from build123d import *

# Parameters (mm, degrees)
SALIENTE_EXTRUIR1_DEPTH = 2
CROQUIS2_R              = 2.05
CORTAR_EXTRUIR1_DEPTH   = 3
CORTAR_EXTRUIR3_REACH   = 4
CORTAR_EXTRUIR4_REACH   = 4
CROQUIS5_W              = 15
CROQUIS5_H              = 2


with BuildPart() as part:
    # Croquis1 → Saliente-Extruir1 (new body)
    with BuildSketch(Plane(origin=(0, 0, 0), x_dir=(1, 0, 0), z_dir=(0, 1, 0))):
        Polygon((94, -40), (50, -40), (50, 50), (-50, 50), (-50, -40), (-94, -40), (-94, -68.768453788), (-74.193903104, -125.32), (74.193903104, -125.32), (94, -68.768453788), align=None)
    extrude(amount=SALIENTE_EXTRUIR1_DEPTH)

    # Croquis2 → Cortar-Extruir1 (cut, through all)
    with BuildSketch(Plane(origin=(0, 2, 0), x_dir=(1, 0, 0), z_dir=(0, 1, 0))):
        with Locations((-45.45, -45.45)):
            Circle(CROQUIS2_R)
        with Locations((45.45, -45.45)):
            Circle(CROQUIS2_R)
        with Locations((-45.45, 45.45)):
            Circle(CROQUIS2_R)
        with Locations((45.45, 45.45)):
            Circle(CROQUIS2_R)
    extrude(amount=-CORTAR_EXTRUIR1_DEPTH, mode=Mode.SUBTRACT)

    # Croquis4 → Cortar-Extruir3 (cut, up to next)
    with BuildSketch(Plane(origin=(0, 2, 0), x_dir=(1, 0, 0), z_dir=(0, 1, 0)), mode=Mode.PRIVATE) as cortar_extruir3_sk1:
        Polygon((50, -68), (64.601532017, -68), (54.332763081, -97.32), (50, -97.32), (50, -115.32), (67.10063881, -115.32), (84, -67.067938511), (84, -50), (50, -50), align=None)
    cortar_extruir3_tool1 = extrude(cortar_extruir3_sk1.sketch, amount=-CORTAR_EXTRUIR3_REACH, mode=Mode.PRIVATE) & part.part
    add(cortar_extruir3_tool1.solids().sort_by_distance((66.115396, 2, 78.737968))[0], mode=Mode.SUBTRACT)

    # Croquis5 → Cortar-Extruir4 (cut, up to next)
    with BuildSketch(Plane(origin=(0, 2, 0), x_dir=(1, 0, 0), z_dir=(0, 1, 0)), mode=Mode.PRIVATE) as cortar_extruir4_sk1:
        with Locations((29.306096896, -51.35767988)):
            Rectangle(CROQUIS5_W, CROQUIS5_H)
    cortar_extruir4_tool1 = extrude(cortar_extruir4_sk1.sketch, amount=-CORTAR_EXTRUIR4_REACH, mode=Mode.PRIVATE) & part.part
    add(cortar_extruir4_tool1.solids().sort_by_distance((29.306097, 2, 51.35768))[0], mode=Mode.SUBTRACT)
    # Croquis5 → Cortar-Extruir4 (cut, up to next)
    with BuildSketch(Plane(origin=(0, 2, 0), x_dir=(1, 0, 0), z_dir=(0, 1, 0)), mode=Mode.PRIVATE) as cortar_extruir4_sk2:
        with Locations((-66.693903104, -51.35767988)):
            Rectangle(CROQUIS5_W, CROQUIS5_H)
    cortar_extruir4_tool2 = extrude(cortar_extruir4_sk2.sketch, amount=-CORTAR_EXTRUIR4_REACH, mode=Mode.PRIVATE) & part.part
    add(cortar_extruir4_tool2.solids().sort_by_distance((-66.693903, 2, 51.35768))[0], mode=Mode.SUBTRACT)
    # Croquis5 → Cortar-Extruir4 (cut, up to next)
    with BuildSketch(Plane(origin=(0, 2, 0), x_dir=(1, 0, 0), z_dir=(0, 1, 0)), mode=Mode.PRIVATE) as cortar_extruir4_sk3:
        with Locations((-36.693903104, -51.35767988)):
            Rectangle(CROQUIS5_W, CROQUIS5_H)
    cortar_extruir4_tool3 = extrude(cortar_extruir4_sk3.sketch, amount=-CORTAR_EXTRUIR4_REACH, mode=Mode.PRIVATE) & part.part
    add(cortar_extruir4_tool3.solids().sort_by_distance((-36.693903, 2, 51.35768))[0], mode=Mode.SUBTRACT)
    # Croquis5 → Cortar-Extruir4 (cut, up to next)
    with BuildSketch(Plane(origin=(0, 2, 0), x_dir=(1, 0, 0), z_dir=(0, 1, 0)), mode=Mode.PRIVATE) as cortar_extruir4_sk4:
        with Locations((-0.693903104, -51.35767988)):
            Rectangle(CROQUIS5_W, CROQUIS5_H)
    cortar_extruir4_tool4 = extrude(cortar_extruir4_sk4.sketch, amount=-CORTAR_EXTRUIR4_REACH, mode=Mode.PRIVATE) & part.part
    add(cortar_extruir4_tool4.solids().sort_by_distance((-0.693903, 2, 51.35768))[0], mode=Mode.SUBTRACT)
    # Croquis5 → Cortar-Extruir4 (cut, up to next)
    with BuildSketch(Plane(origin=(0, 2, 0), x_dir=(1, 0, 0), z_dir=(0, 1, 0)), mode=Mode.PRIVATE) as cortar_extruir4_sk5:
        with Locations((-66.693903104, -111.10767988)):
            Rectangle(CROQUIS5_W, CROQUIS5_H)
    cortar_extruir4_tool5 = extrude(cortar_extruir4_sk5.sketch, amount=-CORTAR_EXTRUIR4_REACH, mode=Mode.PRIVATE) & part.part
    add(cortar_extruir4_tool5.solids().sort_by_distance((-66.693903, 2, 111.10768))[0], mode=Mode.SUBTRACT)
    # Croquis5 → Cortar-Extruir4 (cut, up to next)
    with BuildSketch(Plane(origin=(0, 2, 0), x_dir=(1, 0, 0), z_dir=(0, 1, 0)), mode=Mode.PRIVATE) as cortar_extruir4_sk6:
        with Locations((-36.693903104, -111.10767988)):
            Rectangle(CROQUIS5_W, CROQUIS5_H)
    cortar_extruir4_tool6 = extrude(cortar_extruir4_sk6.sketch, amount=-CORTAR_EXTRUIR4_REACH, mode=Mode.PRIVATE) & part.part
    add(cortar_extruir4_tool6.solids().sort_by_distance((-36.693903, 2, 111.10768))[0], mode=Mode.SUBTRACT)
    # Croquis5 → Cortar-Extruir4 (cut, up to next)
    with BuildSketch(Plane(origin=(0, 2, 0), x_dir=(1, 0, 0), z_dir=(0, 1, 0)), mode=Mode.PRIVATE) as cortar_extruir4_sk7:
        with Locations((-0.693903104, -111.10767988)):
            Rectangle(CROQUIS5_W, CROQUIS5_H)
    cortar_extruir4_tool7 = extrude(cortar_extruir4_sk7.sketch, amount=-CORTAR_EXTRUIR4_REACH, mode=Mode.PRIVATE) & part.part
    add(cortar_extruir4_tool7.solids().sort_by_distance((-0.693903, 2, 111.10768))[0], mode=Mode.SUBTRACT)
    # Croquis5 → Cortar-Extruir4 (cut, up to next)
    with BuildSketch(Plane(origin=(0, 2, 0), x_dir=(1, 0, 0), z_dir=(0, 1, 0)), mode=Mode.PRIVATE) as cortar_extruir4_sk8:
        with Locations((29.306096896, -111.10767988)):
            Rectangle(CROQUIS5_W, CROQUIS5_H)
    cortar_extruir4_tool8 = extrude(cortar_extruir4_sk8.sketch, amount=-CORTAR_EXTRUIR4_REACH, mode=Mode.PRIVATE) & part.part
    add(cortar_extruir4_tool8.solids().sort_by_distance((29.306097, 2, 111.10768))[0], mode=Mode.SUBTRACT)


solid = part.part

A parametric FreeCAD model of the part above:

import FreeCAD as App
import Part
import Sketcher

V = App.Vector
Q = App.Units.Quantity

doc = App.newDocument("Part")
params = doc.addObject("Spreadsheet::Sheet", "Params")
for row, (alias, value) in enumerate([
    ("sketch1_width", "44 mm"),
    ("sketch1_width2", "100 mm"),
    ("sketch1_height", "90 mm"),
    ("pad1_length", "2 mm"),
    ("sketch2_diameter", "4.1 mm"),
    ("sketch3_width", "34 mm"),
    ("sketch3_height", "18 mm"),
    ("sketch4_width", "15 mm"),
    ("sketch4_height", "2 mm"),
    ("sketch5_width", "15 mm"),
    ("sketch5_height", "2 mm"),
    ("sketch6_width", "15 mm"),
    ("sketch6_height", "2 mm"),
    ("sketch7_width", "15 mm"),
    ("sketch7_height", "2 mm"),
    ("sketch8_width", "15 mm"),
    ("sketch8_height", "2 mm"),
    ("sketch9_width", "15 mm"),
    ("sketch9_height", "2 mm"),
    ("sketch10_width", "15 mm"),
    ("sketch10_height", "2 mm"),
    ("sketch11_width", "15 mm"),
    ("sketch11_height", "2 mm"),
], start=1):
    params.set(f"A{row}", alias)
    params.set(f"B{row}", "=" + value)
    params.setAlias(f"B{row}", alias)

body = doc.addObject("PartDesign::Body", "Body")

# Sketch on XZ plane
sketch1 = body.newObject("Sketcher::SketchObject", "Sketch")
sketch1.AttachmentSupport = (doc.getObject("XZ_Plane"), [""])
sketch1.MapMode = "FlatFace"
sketch1.addGeometry([
    Part.LineSegment(V(94, 40, 0), V(50, 40, 0)),  # 0
    Part.LineSegment(V(50, 40, 0), V(50, -50, 0)),  # 1
    Part.LineSegment(V(50, -50, 0), V(-50, -50, 0)),  # 2
    Part.LineSegment(V(-50, -50, 0), V(-50, 40, 0)),  # 3
    Part.LineSegment(V(-50, 40, 0), V(-94, 40, 0)),  # 4
    Part.LineSegment(V(-94, 40, 0), V(-94, 68.768454, 0)),  # 5
    Part.LineSegment(V(-94, 68.768454, 0), V(-74.193903, 125.32, 0)),  # 6
    Part.LineSegment(V(-74.193903, 125.32, 0), V(74.193903, 125.32, 0)),  # 7
    Part.LineSegment(V(74.193903, 125.32, 0), V(94, 68.768454, 0)),  # 8
    Part.LineSegment(V(94, 68.768454, 0), V(94, 40, 0)),  # 9
], False)
sketch1.addConstraint([
    Sketcher.Constraint("Coincident", 0, 2, 1, 1),
    Sketcher.Constraint("Coincident", 1, 2, 2, 1),
    Sketcher.Constraint("Coincident", 2, 2, 3, 1),
    Sketcher.Constraint("Coincident", 3, 2, 4, 1),
    Sketcher.Constraint("Coincident", 4, 2, 5, 1),
    Sketcher.Constraint("Coincident", 5, 2, 6, 1),
    Sketcher.Constraint("Coincident", 6, 2, 7, 1),
    Sketcher.Constraint("Coincident", 7, 2, 8, 1),
    Sketcher.Constraint("Coincident", 8, 2, 9, 1),
    Sketcher.Constraint("Coincident", 9, 2, 0, 1),
    Sketcher.Constraint("Horizontal", 0),
    Sketcher.Constraint("Vertical", 1),
    Sketcher.Constraint("Horizontal", 2),
    Sketcher.Constraint("Vertical", 3),
    Sketcher.Constraint("Horizontal", 4),
    Sketcher.Constraint("Vertical", 5),
    Sketcher.Constraint("Horizontal", 7),
    Sketcher.Constraint("Vertical", 9),
    Sketcher.Constraint("Symmetric", 0, 2, 3, 2, -2),
    Sketcher.Constraint("Symmetric", 5, 2, 8, 2, -2),
    Sketcher.Constraint("Equal", 6, 8),
    Sketcher.Constraint("DistanceX", 0, 2, 0, 1, Q("44 mm")),
    Sketcher.Constraint("DistanceX", 2, 2, 2, 1, Q("100 mm")),
    Sketcher.Constraint("DistanceY", 1, 2, 1, 1, Q("90 mm")),
    Sketcher.Constraint("DistanceY", -1, 1, 0, 2, Q("40 mm")),
    Sketcher.Constraint("DistanceY", -1, 1, 6, 2, Q("125.32 mm")),
    Sketcher.Constraint("DistanceX", 7, 1, 7, 2, Q("148.387806 mm")),
    Sketcher.Constraint("DistanceY", 5, 1, 5, 2, Q("28.768454 mm")),
])
sketch1.setExpression("Constraints[21]", "Params.sketch1_width")
sketch1.setExpression("Constraints[22]", "Params.sketch1_width2")
sketch1.setExpression("Constraints[23]", "Params.sketch1_height")
pad1 = body.newObject("PartDesign::Pad", "Pad")
pad1.Profile = sketch1
pad1.setExpression("Length", "Params.pad1_length")
pad1.Reversed = True

# Sketch on XZ plane
sketch2 = body.newObject("Sketcher::SketchObject", "Sketch001")
sketch2.AttachmentSupport = (doc.getObject("XZ_Plane"), [""])
sketch2.MapMode = "FlatFace"
sketch2.AttachmentOffset = App.Placement(V(0, 0, -2), App.Rotation())
sketch2.addGeometry([
    Part.Circle(V(-45.45, 45.45, 0), V(0, 0, 1), 2.05),
    Part.Circle(V(45.45, 45.45, 0), V(0, 0, 1), 2.05),
    Part.Circle(V(-45.45, -45.45, 0), V(0, 0, 1), 2.05),
    Part.Circle(V(45.45, -45.45, 0), V(0, 0, 1), 2.05),
], False)
sketch2.addConstraint([
    Sketcher.Constraint("Equal", 0, 1),
    Sketcher.Constraint("Equal", 1, 2),
    Sketcher.Constraint("Equal", 2, 3),
    Sketcher.Constraint("Symmetric", 1, 3, 2, 3, -1, 1),
    Sketcher.Constraint("Symmetric", 0, 3, 3, 3, -1, 1),
    Sketcher.Constraint("Symmetric", 0, 3, 1, 3, -2),
    Sketcher.Constraint("Diameter", 0, Q("4.1 mm")),
    Sketcher.Constraint("DistanceX", 0, 3, 1, 3, Q("90.9 mm")),
    Sketcher.Constraint("DistanceY", 2, 3, 0, 3, Q("90.9 mm")),
])
sketch2.setExpression("Constraints[6]", "Params.sketch2_diameter")
pocket1 = body.newObject("PartDesign::Pocket", "Pocket")
pocket1.Profile = sketch2
pocket1.Type = "ThroughAll"
pocket1.Reversed = True

# Sketch on XZ plane
sketch3 = body.newObject("Sketcher::SketchObject", "Sketch002")
sketch3.AttachmentSupport = (doc.getObject("XZ_Plane"), [""])
sketch3.MapMode = "FlatFace"
sketch3.AttachmentOffset = App.Placement(V(0, 0, -2), App.Rotation())
sketch3.addGeometry([
    Part.LineSegment(V(50, 68, 0), V(64.601532, 68, 0)),  # 0
    Part.LineSegment(V(64.601532, 68, 0), V(54.332763, 97.32, 0)),  # 1
    Part.LineSegment(V(54.332763, 97.32, 0), V(50, 97.32, 0)),  # 2
    Part.LineSegment(V(50, 97.32, 0), V(50, 115.32, 0)),  # 3
    Part.LineSegment(V(50, 115.32, 0), V(67.100639, 115.32, 0)),  # 4
    Part.LineSegment(V(67.100639, 115.32, 0), V(84, 67.067939, 0)),  # 5
    Part.LineSegment(V(84, 67.067939, 0), V(84, 50, 0)),  # 6
    Part.LineSegment(V(84, 50, 0), V(50, 50, 0)),  # 7
    Part.LineSegment(V(50, 50, 0), V(50, 68, 0)),  # 8
], False)
sketch3.addConstraint([
    Sketcher.Constraint("Coincident", 0, 2, 1, 1),
    Sketcher.Constraint("Coincident", 1, 2, 2, 1),
    Sketcher.Constraint("Coincident", 2, 2, 3, 1),
    Sketcher.Constraint("Coincident", 3, 2, 4, 1),
    Sketcher.Constraint("Coincident", 4, 2, 5, 1),
    Sketcher.Constraint("Coincident", 5, 2, 6, 1),
    Sketcher.Constraint("Coincident", 6, 2, 7, 1),
    Sketcher.Constraint("Coincident", 7, 2, 8, 1),
    Sketcher.Constraint("Coincident", 8, 2, 0, 1),
    Sketcher.Constraint("Horizontal", 0),
    Sketcher.Constraint("Horizontal", 2),
    Sketcher.Constraint("Vertical", 3),
    Sketcher.Constraint("Horizontal", 4),
    Sketcher.Constraint("Vertical", 6),
    Sketcher.Constraint("Horizontal", 7),
    Sketcher.Constraint("Vertical", 8),
    Sketcher.Constraint("Parallel", 1, 5),
    Sketcher.Constraint("Vertical", 3, 2, 7, 2),
    Sketcher.Constraint("Equal", 3, 8),
    Sketcher.Constraint("DistanceX", 7, 2, 7, 1, Q("34 mm")),
    Sketcher.Constraint("DistanceY", 3, 1, 3, 2, Q("18 mm")),
    Sketcher.Constraint("DistanceY", -1, 1, 0, 2, Q("68 mm")),
    Sketcher.Constraint("DistanceX", -1, 1, 2, 2, Q("50 mm")),
    Sketcher.Constraint("DistanceY", -1, 1, 1, 2, Q("97.32 mm")),
    Sketcher.Constraint("DistanceX", 4, 1, 4, 2, Q("17.100639 mm")),
    Sketcher.Constraint("DistanceY", 6, 2, 6, 1, Q("17.067939 mm")),
    Sketcher.Constraint("DistanceX", 0, 1, 0, 2, Q("14.601532 mm")),
])
sketch3.setExpression("Constraints[19]", "Params.sketch3_width")
sketch3.setExpression("Constraints[20]", "Params.sketch3_height")
pocket2 = body.newObject("PartDesign::Pocket", "Pocket001")
pocket2.Profile = sketch3
pocket2.Type = "UpToFirst"
pocket2.Reversed = True

# Sketch on XZ plane
sketch4 = body.newObject("Sketcher::SketchObject", "Sketch003")
sketch4.AttachmentSupport = (doc.getObject("XZ_Plane"), [""])
sketch4.MapMode = "FlatFace"
sketch4.AttachmentOffset = App.Placement(V(0, 0, -2), App.Rotation())
sketch4.addGeometry([
    Part.LineSegment(V(21.806097, 50.35768, 0), V(21.806097, 52.35768, 0)),
    Part.LineSegment(V(21.806097, 52.35768, 0), V(36.806097, 52.35768, 0)),
    Part.LineSegment(V(36.806097, 52.35768, 0), V(36.806097, 50.35768, 0)),
    Part.LineSegment(V(36.806097, 50.35768, 0), V(21.806097, 50.35768, 0)),
], False)
sketch4.addConstraint([
    Sketcher.Constraint("Coincident", 0, 2, 1, 1),
    Sketcher.Constraint("Coincident", 1, 2, 2, 1),
    Sketcher.Constraint("Coincident", 2, 2, 3, 1),
    Sketcher.Constraint("Coincident", 3, 2, 0, 1),
    Sketcher.Constraint("Vertical", 0),
    Sketcher.Constraint("Horizontal", 1),
    Sketcher.Constraint("Vertical", 2),
    Sketcher.Constraint("Horizontal", 3),
    Sketcher.Constraint("DistanceX", 1, 1, 1, 2, Q("15 mm")),
    Sketcher.Constraint("DistanceY", 0, 1, 0, 2, Q("2 mm")),
    Sketcher.Constraint("DistanceY", -1, 1, 0, 2, Q("52.35768 mm")),
    Sketcher.Constraint("DistanceX", -1, 1, 0, 2, Q("21.806097 mm")),
])
sketch4.setExpression("Constraints[8]", "Params.sketch4_width")
sketch4.setExpression("Constraints[9]", "Params.sketch4_height")
pocket3 = body.newObject("PartDesign::Pocket", "Pocket002")
pocket3.Profile = sketch4
pocket3.Type = "UpToFirst"
pocket3.Reversed = True

# Sketch on XZ plane
sketch5 = body.newObject("Sketcher::SketchObject", "Sketch004")
sketch5.AttachmentSupport = (doc.getObject("XZ_Plane"), [""])
sketch5.MapMode = "FlatFace"
sketch5.AttachmentOffset = App.Placement(V(0, 0, -2), App.Rotation())
sketch5.addGeometry([
    Part.LineSegment(V(-74.193903, 50.35768, 0), V(-74.193903, 52.35768, 0)),
    Part.LineSegment(V(-74.193903, 52.35768, 0), V(-59.193903, 52.35768, 0)),
    Part.LineSegment(V(-59.193903, 52.35768, 0), V(-59.193903, 50.35768, 0)),
    Part.LineSegment(V(-59.193903, 50.35768, 0), V(-74.193903, 50.35768, 0)),
], False)
sketch5.addConstraint([
    Sketcher.Constraint("Coincident", 0, 2, 1, 1),
    Sketcher.Constraint("Coincident", 1, 2, 2, 1),
    Sketcher.Constraint("Coincident", 2, 2, 3, 1),
    Sketcher.Constraint("Coincident", 3, 2, 0, 1),
    Sketcher.Constraint("Vertical", 0),
    Sketcher.Constraint("Horizontal", 1),
    Sketcher.Constraint("Vertical", 2),
    Sketcher.Constraint("Horizontal", 3),
    Sketcher.Constraint("DistanceX", 1, 1, 1, 2, Q("15 mm")),
    Sketcher.Constraint("DistanceY", 0, 1, 0, 2, Q("2 mm")),
    Sketcher.Constraint("DistanceY", -1, 1, 0, 2, Q("52.35768 mm")),
    Sketcher.Constraint("DistanceX", 0, 2, -1, 1, Q("74.193903 mm")),
])
sketch5.setExpression("Constraints[8]", "Params.sketch5_width")
sketch5.setExpression("Constraints[9]", "Params.sketch5_height")
pocket4 = body.newObject("PartDesign::Pocket", "Pocket003")
pocket4.Profile = sketch5
pocket4.Type = "UpToFirst"
pocket4.Reversed = True

# Sketch on XZ plane
sketch6 = body.newObject("Sketcher::SketchObject", "Sketch005")
sketch6.AttachmentSupport = (doc.getObject("XZ_Plane"), [""])
sketch6.MapMode = "FlatFace"
sketch6.AttachmentOffset = App.Placement(V(0, 0, -2), App.Rotation())
sketch6.addGeometry([
    Part.LineSegment(V(-44.193903, 50.35768, 0), V(-44.193903, 52.35768, 0)),
    Part.LineSegment(V(-44.193903, 52.35768, 0), V(-29.193903, 52.35768, 0)),
    Part.LineSegment(V(-29.193903, 52.35768, 0), V(-29.193903, 50.35768, 0)),
    Part.LineSegment(V(-29.193903, 50.35768, 0), V(-44.193903, 50.35768, 0)),
], False)
sketch6.addConstraint([
    Sketcher.Constraint("Coincident", 0, 2, 1, 1),
    Sketcher.Constraint("Coincident", 1, 2, 2, 1),
    Sketcher.Constraint("Coincident", 2, 2, 3, 1),
    Sketcher.Constraint("Coincident", 3, 2, 0, 1),
    Sketcher.Constraint("Vertical", 0),
    Sketcher.Constraint("Horizontal", 1),
    Sketcher.Constraint("Vertical", 2),
    Sketcher.Constraint("Horizontal", 3),
    Sketcher.Constraint("DistanceX", 1, 1, 1, 2, Q("15 mm")),
    Sketcher.Constraint("DistanceY", 0, 1, 0, 2, Q("2 mm")),
    Sketcher.Constraint("DistanceY", -1, 1, 0, 2, Q("52.35768 mm")),
    Sketcher.Constraint("DistanceX", 0, 2, -1, 1, Q("44.193903 mm")),
])
sketch6.setExpression("Constraints[8]", "Params.sketch6_width")
sketch6.setExpression("Constraints[9]", "Params.sketch6_height")
pocket5 = body.newObject("PartDesign::Pocket", "Pocket004")
pocket5.Profile = sketch6
pocket5.Type = "UpToFirst"
pocket5.Reversed = True

# Sketch on XZ plane
sketch7 = body.newObject("Sketcher::SketchObject", "Sketch006")
sketch7.AttachmentSupport = (doc.getObject("XZ_Plane"), [""])
sketch7.MapMode = "FlatFace"
sketch7.AttachmentOffset = App.Placement(V(0, 0, -2), App.Rotation())
sketch7.addGeometry([
    Part.LineSegment(V(-8.193903, 50.35768, 0), V(-8.193903, 52.35768, 0)),
    Part.LineSegment(V(-8.193903, 52.35768, 0), V(6.806097, 52.35768, 0)),
    Part.LineSegment(V(6.806097, 52.35768, 0), V(6.806097, 50.35768, 0)),
    Part.LineSegment(V(6.806097, 50.35768, 0), V(-8.193903, 50.35768, 0)),
], False)
sketch7.addConstraint([
    Sketcher.Constraint("Coincident", 0, 2, 1, 1),
    Sketcher.Constraint("Coincident", 1, 2, 2, 1),
    Sketcher.Constraint("Coincident", 2, 2, 3, 1),
    Sketcher.Constraint("Coincident", 3, 2, 0, 1),
    Sketcher.Constraint("Vertical", 0),
    Sketcher.Constraint("Horizontal", 1),
    Sketcher.Constraint("Vertical", 2),
    Sketcher.Constraint("Horizontal", 3),
    Sketcher.Constraint("DistanceX", 1, 1, 1, 2, Q("15 mm")),
    Sketcher.Constraint("DistanceY", 0, 1, 0, 2, Q("2 mm")),
    Sketcher.Constraint("DistanceY", -1, 1, 0, 2, Q("52.35768 mm")),
    Sketcher.Constraint("DistanceX", 0, 2, -1, 1, Q("8.193903 mm")),
])
sketch7.setExpression("Constraints[8]", "Params.sketch7_width")
sketch7.setExpression("Constraints[9]", "Params.sketch7_height")
pocket6 = body.newObject("PartDesign::Pocket", "Pocket005")
pocket6.Profile = sketch7
pocket6.Type = "UpToFirst"
pocket6.Reversed = True

# Sketch on XZ plane
sketch8 = body.newObject("Sketcher::SketchObject", "Sketch007")
sketch8.AttachmentSupport = (doc.getObject("XZ_Plane"), [""])
sketch8.MapMode = "FlatFace"
sketch8.AttachmentOffset = App.Placement(V(0, 0, -2), App.Rotation())
sketch8.addGeometry([
    Part.LineSegment(V(-74.193903, 110.10768, 0), V(-74.193903, 112.10768, 0)),
    Part.LineSegment(V(-74.193903, 112.10768, 0), V(-59.193903, 112.10768, 0)),
    Part.LineSegment(V(-59.193903, 112.10768, 0), V(-59.193903, 110.10768, 0)),
    Part.LineSegment(V(-59.193903, 110.10768, 0), V(-74.193903, 110.10768, 0)),
], False)
sketch8.addConstraint([
    Sketcher.Constraint("Coincident", 0, 2, 1, 1),
    Sketcher.Constraint("Coincident", 1, 2, 2, 1),
    Sketcher.Constraint("Coincident", 2, 2, 3, 1),
    Sketcher.Constraint("Coincident", 3, 2, 0, 1),
    Sketcher.Constraint("Vertical", 0),
    Sketcher.Constraint("Horizontal", 1),
    Sketcher.Constraint("Vertical", 2),
    Sketcher.Constraint("Horizontal", 3),
    Sketcher.Constraint("DistanceX", 1, 1, 1, 2, Q("15 mm")),
    Sketcher.Constraint("DistanceY", 0, 1, 0, 2, Q("2 mm")),
    Sketcher.Constraint("DistanceY", -1, 1, 0, 2, Q("112.10768 mm")),
    Sketcher.Constraint("DistanceX", 0, 2, -1, 1, Q("74.193903 mm")),
])
sketch8.setExpression("Constraints[8]", "Params.sketch8_width")
sketch8.setExpression("Constraints[9]", "Params.sketch8_height")
pocket7 = body.newObject("PartDesign::Pocket", "Pocket006")
pocket7.Profile = sketch8
pocket7.Type = "UpToFirst"
pocket7.Reversed = True

# Sketch on XZ plane
sketch9 = body.newObject("Sketcher::SketchObject", "Sketch008")
sketch9.AttachmentSupport = (doc.getObject("XZ_Plane"), [""])
sketch9.MapMode = "FlatFace"
sketch9.AttachmentOffset = App.Placement(V(0, 0, -2), App.Rotation())
sketch9.addGeometry([
    Part.LineSegment(V(-44.193903, 110.10768, 0), V(-44.193903, 112.10768, 0)),
    Part.LineSegment(V(-44.193903, 112.10768, 0), V(-29.193903, 112.10768, 0)),
    Part.LineSegment(V(-29.193903, 112.10768, 0), V(-29.193903, 110.10768, 0)),
    Part.LineSegment(V(-29.193903, 110.10768, 0), V(-44.193903, 110.10768, 0)),
], False)
sketch9.addConstraint([
    Sketcher.Constraint("Coincident", 0, 2, 1, 1),
    Sketcher.Constraint("Coincident", 1, 2, 2, 1),
    Sketcher.Constraint("Coincident", 2, 2, 3, 1),
    Sketcher.Constraint("Coincident", 3, 2, 0, 1),
    Sketcher.Constraint("Vertical", 0),
    Sketcher.Constraint("Horizontal", 1),
    Sketcher.Constraint("Vertical", 2),
    Sketcher.Constraint("Horizontal", 3),
    Sketcher.Constraint("DistanceX", 1, 1, 1, 2, Q("15 mm")),
    Sketcher.Constraint("DistanceY", 0, 1, 0, 2, Q("2 mm")),
    Sketcher.Constraint("DistanceY", -1, 1, 0, 2, Q("112.10768 mm")),
    Sketcher.Constraint("DistanceX", 0, 2, -1, 1, Q("44.193903 mm")),
])
sketch9.setExpression("Constraints[8]", "Params.sketch9_width")
sketch9.setExpression("Constraints[9]", "Params.sketch9_height")
pocket8 = body.newObject("PartDesign::Pocket", "Pocket007")
pocket8.Profile = sketch9
pocket8.Type = "UpToFirst"
pocket8.Reversed = True

# Sketch on XZ plane
sketch10 = body.newObject("Sketcher::SketchObject", "Sketch009")
sketch10.AttachmentSupport = (doc.getObject("XZ_Plane"), [""])
sketch10.MapMode = "FlatFace"
sketch10.AttachmentOffset = App.Placement(V(0, 0, -2), App.Rotation())
sketch10.addGeometry([
    Part.LineSegment(V(-8.193903, 110.10768, 0), V(-8.193903, 112.10768, 0)),
    Part.LineSegment(V(-8.193903, 112.10768, 0), V(6.806097, 112.10768, 0)),
    Part.LineSegment(V(6.806097, 112.10768, 0), V(6.806097, 110.10768, 0)),
    Part.LineSegment(V(6.806097, 110.10768, 0), V(-8.193903, 110.10768, 0)),
], False)
sketch10.addConstraint([
    Sketcher.Constraint("Coincident", 0, 2, 1, 1),
    Sketcher.Constraint("Coincident", 1, 2, 2, 1),
    Sketcher.Constraint("Coincident", 2, 2, 3, 1),
    Sketcher.Constraint("Coincident", 3, 2, 0, 1),
    Sketcher.Constraint("Vertical", 0),
    Sketcher.Constraint("Horizontal", 1),
    Sketcher.Constraint("Vertical", 2),
    Sketcher.Constraint("Horizontal", 3),
    Sketcher.Constraint("DistanceX", 1, 1, 1, 2, Q("15 mm")),
    Sketcher.Constraint("DistanceY", 0, 1, 0, 2, Q("2 mm")),
    Sketcher.Constraint("DistanceY", -1, 1, 0, 2, Q("112.10768 mm")),
    Sketcher.Constraint("DistanceX", 0, 2, -1, 1, Q("8.193903 mm")),
])
sketch10.setExpression("Constraints[8]", "Params.sketch10_width")
sketch10.setExpression("Constraints[9]", "Params.sketch10_height")
pocket9 = body.newObject("PartDesign::Pocket", "Pocket008")
pocket9.Profile = sketch10
pocket9.Type = "UpToFirst"
pocket9.Reversed = True

# Sketch on XZ plane
sketch11 = body.newObject("Sketcher::SketchObject", "Sketch010")
sketch11.AttachmentSupport = (doc.getObject("XZ_Plane"), [""])
sketch11.MapMode = "FlatFace"
sketch11.AttachmentOffset = App.Placement(V(0, 0, -2), App.Rotation())
sketch11.addGeometry([
    Part.LineSegment(V(21.806097, 110.10768, 0), V(21.806097, 112.10768, 0)),
    Part.LineSegment(V(21.806097, 112.10768, 0), V(36.806097, 112.10768, 0)),
    Part.LineSegment(V(36.806097, 112.10768, 0), V(36.806097, 110.10768, 0)),
    Part.LineSegment(V(36.806097, 110.10768, 0), V(21.806097, 110.10768, 0)),
], False)
sketch11.addConstraint([
    Sketcher.Constraint("Coincident", 0, 2, 1, 1),
    Sketcher.Constraint("Coincident", 1, 2, 2, 1),
    Sketcher.Constraint("Coincident", 2, 2, 3, 1),
    Sketcher.Constraint("Coincident", 3, 2, 0, 1),
    Sketcher.Constraint("Vertical", 0),
    Sketcher.Constraint("Horizontal", 1),
    Sketcher.Constraint("Vertical", 2),
    Sketcher.Constraint("Horizontal", 3),
    Sketcher.Constraint("DistanceX", 1, 1, 1, 2, Q("15 mm")),
    Sketcher.Constraint("DistanceY", 0, 1, 0, 2, Q("2 mm")),
    Sketcher.Constraint("DistanceY", -1, 1, 0, 2, Q("112.10768 mm")),
    Sketcher.Constraint("DistanceX", -1, 1, 0, 2, Q("21.806097 mm")),
])
sketch11.setExpression("Constraints[8]", "Params.sketch11_width")
sketch11.setExpression("Constraints[9]", "Params.sketch11_height")
pocket10 = body.newObject("PartDesign::Pocket", "Pocket009")
pocket10.Profile = sketch11
pocket10.Type = "UpToFirst"
pocket10.Reversed = True

doc.recompute()
